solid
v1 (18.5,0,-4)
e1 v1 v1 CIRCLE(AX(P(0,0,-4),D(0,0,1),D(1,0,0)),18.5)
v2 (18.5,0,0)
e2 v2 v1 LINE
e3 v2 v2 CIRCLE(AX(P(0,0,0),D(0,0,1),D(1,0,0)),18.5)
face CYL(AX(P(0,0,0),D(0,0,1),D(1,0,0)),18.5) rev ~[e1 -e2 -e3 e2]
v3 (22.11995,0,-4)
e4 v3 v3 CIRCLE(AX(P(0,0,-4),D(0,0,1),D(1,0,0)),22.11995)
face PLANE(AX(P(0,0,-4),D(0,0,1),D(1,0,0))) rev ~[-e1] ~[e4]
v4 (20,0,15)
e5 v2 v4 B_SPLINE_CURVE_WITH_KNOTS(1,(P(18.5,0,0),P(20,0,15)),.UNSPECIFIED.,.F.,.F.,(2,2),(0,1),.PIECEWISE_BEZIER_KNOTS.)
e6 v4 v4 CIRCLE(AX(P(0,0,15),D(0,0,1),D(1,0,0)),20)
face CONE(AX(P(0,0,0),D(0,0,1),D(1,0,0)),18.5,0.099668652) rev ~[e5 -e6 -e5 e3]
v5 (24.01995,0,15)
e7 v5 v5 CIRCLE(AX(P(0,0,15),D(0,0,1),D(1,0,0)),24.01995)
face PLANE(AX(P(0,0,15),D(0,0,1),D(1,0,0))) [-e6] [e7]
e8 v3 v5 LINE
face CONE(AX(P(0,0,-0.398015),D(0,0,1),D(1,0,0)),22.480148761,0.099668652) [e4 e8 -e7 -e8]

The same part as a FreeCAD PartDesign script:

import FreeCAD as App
import Part
import Sketcher

V = App.Vector
Q = App.Units.Quantity


def faces_at(feature, points):
    """Names of the faces that lie closest to the given points."""
    faces = feature.Shape.Faces
    near = lambda p: min(range(len(faces)), key=lambda i: faces[i].distToShape(Part.Vertex(*p))[0])
    return sorted({f"Face{near(p) + 1}" for p in points})

doc = App.newDocument("Part")
params = doc.addObject("Spreadsheet::Sheet", "Params")
for row, (alias, value) in enumerate([
    ("sketch1_diameter", "37 mm"),
    ("sketch2_diameter", "40 mm"),
    ("thickness_wall", "4 mm"),
    ("sketch3_diameter", "37 mm"),
    ("pocket1_length", "25 mm"),
], start=1):
    params.set(f"A{row}", alias)
    params.set(f"B{row}", "=" + value)
    params.setAlias(f"B{row}", alias)

body = doc.addObject("PartDesign::Body", "Body")

sketch1 = doc.addObject("Sketcher::SketchObject", "Sketch")
body.addObject(sketch1)
sketch1.AttachmentSupport = (doc.XY_Plane, [""])
sketch1.MapMode = "FlatFace"
sketch1.addGeometry(Part.Circle(V(0, 0, 0), V(0, 0, 1), 18.5), False)
sketch1.addConstraint([
    Sketcher.Constraint("Coincident", 0, 3, -1, 1),
    Sketcher.Constraint("Diameter", 0, Q("37 mm")),
])
sketch1.setExpression("Constraints[1]", "Params.sketch1_diameter")

sketch2 = doc.addObject("Sketcher::SketchObject", "Sketch001")
body.addObject(sketch2)
sketch2.AttachmentSupport = (doc.XY_Plane, [""])
sketch2.MapMode = "FlatFace"
sketch2.AttachmentOffset = App.Placement(V(0, 0, 15), App.Rotation())
sketch2.addGeometry(Part.Circle(V(0, 0, 0), V(0, 0, 1), 20), False)
sketch2.addConstraint([
    Sketcher.Constraint("Coincident", 0, 3, -1, 1),
    Sketcher.Constraint("Diameter", 0, Q("40 mm")),
])
sketch2.setExpression("Constraints[1]", "Params.sketch2_diameter")

additiveloft = doc.addObject("PartDesign::AdditiveLoft", "AdditiveLoft")
body.addObject(additiveloft)
additiveloft.Profile = sketch1
additiveloft.Sections = [sketch2]
doc.recompute()

thickness = doc.addObject("PartDesign::Thickness", "Thickness")
body.addObject(thickness)
thickness.Base = (additiveloft, faces_at(additiveloft, [(0, 0, 15)]))
thickness.setExpression("Value", "Params.thickness_wall")
thickness.Reversed = False
thickness.Join = "Intersection"

sketch3 = doc.addObject("Sketcher::SketchObject", "Sketch002")
body.addObject(sketch3)
sketch3.AttachmentSupport = (doc.XY_Plane, [""])
sketch3.MapMode = "FlatFace"
sketch3.addGeometry(Part.Circle(V(0, 0, 0), V(0, 0, 1), 18.5), False)
sketch3.addConstraint([
    Sketcher.Constraint("Coincident", 0, 3, -1, 1),
    Sketcher.Constraint("Diameter", 0, Q("37 mm")),
])
sketch3.setExpression("Constraints[1]", "Params.sketch3_diameter")
pocket1 = doc.addObject("PartDesign::Pocket", "Pocket")
body.addObject(pocket1)
pocket1.Profile = sketch3
pocket1.setExpression("Length", "Params.pocket1_length")

doc.recompute()
